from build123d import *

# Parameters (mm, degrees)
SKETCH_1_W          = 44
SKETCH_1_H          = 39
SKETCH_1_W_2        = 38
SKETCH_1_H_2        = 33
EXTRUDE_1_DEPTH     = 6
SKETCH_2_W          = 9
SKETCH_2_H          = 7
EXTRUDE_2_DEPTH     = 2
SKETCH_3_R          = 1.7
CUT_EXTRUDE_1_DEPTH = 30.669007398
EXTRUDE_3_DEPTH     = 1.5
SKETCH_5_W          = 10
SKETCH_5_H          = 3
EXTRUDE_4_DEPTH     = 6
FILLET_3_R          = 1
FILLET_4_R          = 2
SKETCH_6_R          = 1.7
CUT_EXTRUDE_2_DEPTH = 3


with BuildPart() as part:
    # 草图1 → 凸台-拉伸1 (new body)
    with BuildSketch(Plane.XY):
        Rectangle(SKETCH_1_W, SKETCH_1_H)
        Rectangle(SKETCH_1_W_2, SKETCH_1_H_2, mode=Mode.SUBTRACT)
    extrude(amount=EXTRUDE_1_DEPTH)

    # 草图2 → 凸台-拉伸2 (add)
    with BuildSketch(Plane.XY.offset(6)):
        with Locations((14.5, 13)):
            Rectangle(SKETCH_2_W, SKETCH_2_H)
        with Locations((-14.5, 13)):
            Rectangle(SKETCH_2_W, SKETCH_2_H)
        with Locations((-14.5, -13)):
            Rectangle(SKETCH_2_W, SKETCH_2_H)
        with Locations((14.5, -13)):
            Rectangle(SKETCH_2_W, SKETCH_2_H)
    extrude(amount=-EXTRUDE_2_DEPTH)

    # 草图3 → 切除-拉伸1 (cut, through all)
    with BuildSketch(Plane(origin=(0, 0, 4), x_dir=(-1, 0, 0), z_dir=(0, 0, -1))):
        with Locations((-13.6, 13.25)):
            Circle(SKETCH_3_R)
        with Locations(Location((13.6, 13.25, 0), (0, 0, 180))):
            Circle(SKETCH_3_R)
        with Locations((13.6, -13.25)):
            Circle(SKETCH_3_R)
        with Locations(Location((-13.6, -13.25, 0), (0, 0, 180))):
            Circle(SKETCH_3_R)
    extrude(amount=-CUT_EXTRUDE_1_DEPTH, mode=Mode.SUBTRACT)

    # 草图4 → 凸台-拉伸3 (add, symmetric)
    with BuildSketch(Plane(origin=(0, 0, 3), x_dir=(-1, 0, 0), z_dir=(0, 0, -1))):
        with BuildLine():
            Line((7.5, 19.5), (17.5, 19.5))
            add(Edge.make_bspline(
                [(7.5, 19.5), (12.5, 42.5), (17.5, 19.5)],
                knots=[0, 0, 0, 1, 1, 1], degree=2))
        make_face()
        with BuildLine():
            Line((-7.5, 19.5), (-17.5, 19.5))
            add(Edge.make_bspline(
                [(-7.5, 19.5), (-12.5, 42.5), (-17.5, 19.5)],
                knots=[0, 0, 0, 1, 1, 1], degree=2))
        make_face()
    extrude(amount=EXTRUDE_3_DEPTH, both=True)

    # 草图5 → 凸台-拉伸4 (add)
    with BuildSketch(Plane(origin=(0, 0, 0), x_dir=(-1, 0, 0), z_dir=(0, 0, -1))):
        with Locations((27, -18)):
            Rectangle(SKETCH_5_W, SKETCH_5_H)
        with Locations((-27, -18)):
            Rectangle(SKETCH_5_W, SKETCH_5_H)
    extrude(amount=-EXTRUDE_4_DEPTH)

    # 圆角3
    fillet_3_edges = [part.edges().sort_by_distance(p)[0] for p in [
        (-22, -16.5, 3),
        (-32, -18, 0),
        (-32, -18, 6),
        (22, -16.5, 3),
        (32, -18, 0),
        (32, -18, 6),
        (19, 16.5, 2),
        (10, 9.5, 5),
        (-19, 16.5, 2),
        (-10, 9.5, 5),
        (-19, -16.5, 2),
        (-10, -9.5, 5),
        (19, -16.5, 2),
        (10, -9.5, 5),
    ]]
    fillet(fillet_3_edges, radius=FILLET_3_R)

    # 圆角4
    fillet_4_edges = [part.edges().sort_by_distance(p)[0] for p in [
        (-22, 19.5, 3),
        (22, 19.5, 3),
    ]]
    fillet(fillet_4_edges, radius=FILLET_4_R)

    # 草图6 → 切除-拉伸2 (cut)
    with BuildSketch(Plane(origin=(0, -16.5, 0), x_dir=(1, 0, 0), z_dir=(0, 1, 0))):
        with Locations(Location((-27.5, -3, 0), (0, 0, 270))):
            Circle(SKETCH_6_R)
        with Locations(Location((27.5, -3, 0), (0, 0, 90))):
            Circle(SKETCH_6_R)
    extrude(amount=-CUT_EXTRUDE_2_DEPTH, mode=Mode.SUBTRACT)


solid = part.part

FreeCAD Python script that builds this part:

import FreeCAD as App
import Part
import Sketcher
Q = App.Units.Quantity


def edges_at(feature, points):
    """Names of the edges that pass closest to the given points."""
    edges = feature.Shape.Edges
    near = lambda p: min(range(len(edges)), key=lambda i: edges[i].distToShape(Part.Vertex(*p))[0])
    return sorted({f"Edge{near(p) + 1}" for p in points})

doc = App.newDocument("Part")
params = doc.addObject("Spreadsheet::Sheet", "Params")
for row, (alias, value) in enumerate([
    ("sketch1_width", "44 mm"),
    ("sketch1_width2", "38 mm"),
    ("sketch1_height", "39 mm"),
    ("sketch1_height2", "33 mm"),
    ("pad1_length", "6 mm"),
    ("sketch2_width", "9 mm"),
    ("sketch2_height", "7 mm"),
    ("pad2_length", "2 mm"),
    ("sketch3_diameter", "3.4 mm"),
    ("pad3_length", "3 mm"),
    ("sketch5_width", "10 mm"),
    ("sketch5_height", "3 mm"),
    ("pad4_length", "6 mm"),
    ("fillet_radius", "1 mm"),
    ("fillet2_radius", "2 mm"),
    ("sketch6_diameter", "3.4 mm"),
    ("pocket2_length", "3 mm"),
], start=1):
    params.set(f"A{row}", alias)
    params.set(f"B{row}", "=" + value)
    params.setAlias(f"B{row}", alias)

body = doc.addObject("PartDesign::Body", "Body")

# Sketch on XY plane
sketch1 = doc.addObject("Sketcher::SketchObject", "Sketch")
body.addObject(sketch1)
sketch1.AttachmentSupport = (doc.XY_Plane, [""])
sketch1.MapMode = "FlatFace"
sketch1.addGeometry(Part.LineSegment(App.Vector(-22, 20, 0), App.Vector(-22, -20, 0)), False)
sketch1.addGeometry(Part.LineSegment(App.Vector(-22, -20, 0), App.Vector(22, -20, 0)), False)
sketch1.addGeometry(Part.LineSegment(App.Vector(22, -20, 0), App.Vector(22, 20, 0)), False)
sketch1.addGeometry(Part.LineSegment(App.Vector(22, 20, 0), App.Vector(-22, 20, 0)), False)
sketch1.addGeometry(Part.LineSegment(App.Vector(19, -16, 0), App.Vector(-19, -16, 0)), False)
sketch1.addGeometry(Part.LineSegment(App.Vector(-19, -16, 0), App.Vector(-19, 16, 0)), False)
sketch1.addGeometry(Part.LineSegment(App.Vector(-19, 16, 0), App.Vector(19, 16, 0)), False)
sketch1.addGeometry(Part.LineSegment(App.Vector(19, 16, 0), App.Vector(19, -16, 0)), False)
sketch1.addConstraint(Sketcher.Constraint("Coincident", 0, 2, 1, 1))
sketch1.addConstraint(Sketcher.Constraint("Coincident", 1, 2, 2, 1))
sketch1.addConstraint(Sketcher.Constraint("Coincident", 2, 2, 3, 1))
sketch1.addConstraint(Sketcher.Constraint("Coincident", 3, 2, 0, 1))
sketch1.addConstraint(Sketcher.Constraint("Coincident", 4, 2, 5, 1))
sketch1.addConstraint(Sketcher.Constraint("Coincident", 5, 2, 6, 1))
sketch1.addConstraint(Sketcher.Constraint("Coincident", 6, 2, 7, 1))
sketch1.addConstraint(Sketcher.Constraint("Coincident", 7, 2, 4, 1))
sketch1.addConstraint(Sketcher.Constraint("Vertical", 0))
sketch1.addConstraint(Sketcher.Constraint("Horizontal", 1))
sketch1.addConstraint(Sketcher.Constraint("Vertical", 2))
sketch1.addConstraint(Sketcher.Constraint("Horizontal", 3))
sketch1.addConstraint(Sketcher.Constraint("Horizontal", 4))
sketch1.addConstraint(Sketcher.Constraint("Vertical", 5))
sketch1.addConstraint(Sketcher.Constraint("Horizontal", 6))
sketch1.addConstraint(Sketcher.Constraint("Vertical", 7))
sketch1.addConstraint(Sketcher.Constraint("Symmetric", 0, 2, 2, 2, -1, 1))
sketch1.addConstraint(Sketcher.Constraint("Symmetric", 4, 2, 6, 2, -1, 1))
sketch1.addConstraint(Sketcher.Constraint("DistanceX", 1, 1, 1, 2, Q("44 mm")))
sketch1.addConstraint(Sketcher.Constraint("DistanceX", 4, 2, 4, 1, Q("38 mm")))
sketch1.addConstraint(Sketcher.Constraint("DistanceY", 0, 2, 0, 1, Q("39 mm")))
sketch1.addConstraint(Sketcher.Constraint("DistanceY", 5, 1, 5, 2, Q("33 mm")))
sketch1.setExpression("Constraints[18]", "Params.sketch1_width")
sketch1.setExpression("Constraints[19]", "Params.sketch1_width2")
sketch1.setExpression("Constraints[20]", "Params.sketch1_height")
sketch1.setExpression("Constraints[21]", "Params.sketch1_height2")
pad1 = doc.addObject("PartDesign::Pad", "Pad")
body.addObject(pad1)
pad1.Profile = sketch1
pad1.setExpression("Length", "Params.pad1_length")

# Sketch on XY plane
sketch2 = doc.addObject("Sketcher::SketchObject", "Sketch001")
body.addObject(sketch2)
sketch2.AttachmentSupport = (doc.XY_Plane, [""])
sketch2.MapMode = "FlatFace"
sketch2.AttachmentOffset = App.Placement(App.Vector(0, 0, 6), App.Rotation())
sketch2.addGeometry(Part.LineSegment(App.Vector(10, 16, 0), App.Vector(10, 10, 0)), False)
sketch2.addGeometry(Part.LineSegment(App.Vector(10, 10, 0), App.Vector(19, 10, 0)), False)
sketch2.addGeometry(Part.LineSegment(App.Vector(19, 10, 0), App.Vector(19, 16, 0)), False)
sketch2.addGeometry(Part.LineSegment(App.Vector(19, 16, 0), App.Vector(10, 16, 0)), False)
sketch2.addGeometry(Part.LineSegment(App.Vector(-19, 16, 0), App.Vector(-19, 10, 0)), False)
sketch2.addGeometry(Part.LineSegment(App.Vector(-19, 10, 0), App.Vector(-10, 10, 0)), False)
sketch2.addGeometry(Part.LineSegment(App.Vector(-10, 10, 0), App.Vector(-10, 16, 0)), False)
sketch2.addGeometry(Part.LineSegment(App.Vector(-10, 16, 0), App.Vector(-19, 16, 0)), False)
sketch2.addGeometry(Part.LineSegment(App.Vector(-19, -10, 0), App.Vector(-19, -16, 0)), False)
sketch2.addGeometry(Part.LineSegment(App.Vector(-19, -16, 0), App.Vector(-10, -16, 0)), False)
sketch2.addGeometry(Part.LineSegment(App.Vector(-10, -16, 0), App.Vector(-10, -10, 0)), False)
sketch2.addGeometry(Part.LineSegment(App.Vector(-10, -10, 0), App.Vector(-19, -10, 0)), False)
sketch2.addGeometry(Part.LineSegment(App.Vector(10, -10, 0), App.Vector(10, -16, 0)), False)
sketch2.addGeometry(Part.LineSegment(App.Vector(10, -16, 0), App.Vector(19, -16, 0)), False)
sketch2.addGeometry(Part.LineSegment(App.Vector(19, -16, 0), App.Vector(19, -10, 0)), False)
sketch2.addGeometry(Part.LineSegment(App.Vector(19, -10, 0), App.Vector(10, -10, 0)), False)
sketch2.addConstraint(Sketcher.Constraint("Coincident", 0, 2, 1, 1))
sketch2.addConstraint(Sketcher.Constraint("Coincident", 1, 2, 2, 1))
sketch2.addConstraint(Sketcher.Constraint("Coincident", 2, 2, 3, 1))
sketch2.addConstraint(Sketcher.Constraint("Coincident", 3, 2, 0, 1))
sketch2.addConstraint(Sketcher.Constraint("Coincident", 4, 2, 5, 1))
sketch2.addConstraint(Sketcher.Constraint("Coincident", 5, 2, 6, 1))
sketch2.addConstraint(Sketcher.Constraint("Coincident", 6, 2, 7, 1))
sketch2.addConstraint(Sketcher.Constraint("Coincident", 7, 2, 4, 1))
sketch2.addConstraint(Sketcher.Constraint("Coincident", 8, 2, 9, 1))
sketch2.addConstraint(Sketcher.Constraint("Coincident", 9, 2, 10, 1))
sketch2.addConstraint(Sketcher.Constraint("Coincident", 10, 2, 11, 1))
sketch2.addConstraint(Sketcher.Constraint("Coincident", 11, 2, 8, 1))
sketch2.addConstraint(Sketcher.Constraint("Coincident", 12, 2, 13, 1))
sketch2.addConstraint(Sketcher.Constraint("Coincident", 13, 2, 14, 1))
sketch2.addConstraint(Sketcher.Constraint("Coincident", 14, 2, 15, 1))
sketch2.addConstraint(Sketcher.Constraint("Coincident", 15, 2, 12, 1))
sketch2.addConstraint(Sketcher.Constraint("Vertical", 0))
sketch2.addConstraint(Sketcher.Constraint("Horizontal", 1))
sketch2.addConstraint(Sketcher.Constraint("Vertical", 2))
sketch2.addConstraint(Sketcher.Constraint("Horizontal", 3))
sketch2.addConstraint(Sketcher.Constraint("Vertical", 4))
sketch2.addConstraint(Sketcher.Constraint("Horizontal", 5))
sketch2.addConstraint(Sketcher.Constraint("Vertical", 6))
sketch2.addConstraint(Sketcher.Constraint("Horizontal", 7))
sketch2.addConstraint(Sketcher.Constraint("Vertical", 8))
sketch2.addConstraint(Sketcher.Constraint("Horizontal", 9))
sketch2.addConstraint(Sketcher.Constraint("Vertical", 10))
sketch2.addConstraint(Sketcher.Constraint("Horizontal", 11))
sketch2.addConstraint(Sketcher.Constraint("Vertical", 12))
sketch2.addConstraint(Sketcher.Constraint("Horizontal", 13))
sketch2.addConstraint(Sketcher.Constraint("Vertical", 14))
sketch2.addConstraint(Sketcher.Constraint("Horizontal", 15))
sketch2.addConstraint(Sketcher.Constraint("Symmetric", 2, 2, 8, 2, -1, 1))
sketch2.addConstraint(Sketcher.Constraint("Symmetric", 0, 2, 10, 2, -1, 1))
sketch2.addConstraint(Sketcher.Constraint("Symmetric", 6, 2, 12, 2, -1, 1))
sketch2.addConstraint(Sketcher.Constraint("Symmetric", 4, 2, 14, 2, -1, 1))
sketch2.addConstraint(Sketcher.Constraint("Symmetric", 1, 2, 4, 2, -2))
sketch2.addConstraint(Sketcher.Constraint("Symmetric", 3, 2, 6, 2, -2))
sketch2.addConstraint(Sketcher.Constraint("DistanceX", 1, 1, 1, 2, Q("9 mm")))
sketch2.addConstraint(Sketcher.Constraint("DistanceY", 0, 2, 0, 1, Q("7 mm")))
sketch2.addConstraint(Sketcher.Constraint("DistanceX", -1, 1, 0, 2, Q("10 mm")))
sketch2.addConstraint(Sketcher.Constraint("DistanceY", 8, 2, 4, 2, Q("26 mm")))
sketch2.setExpression("Constraints[38]", "Params.sketch2_width")
sketch2.setExpression("Constraints[39]", "Params.sketch2_height")
pad2 = doc.addObject("PartDesign::Pad", "Pad001")
body.addObject(pad2)
pad2.Profile = sketch2
pad2.setExpression("Length", "Params.pad2_length")
pad2.Reversed = True

# Sketch on XY plane
sketch3 = doc.addObject("Sketcher::SketchObject", "Sketch002")
body.addObject(sketch3)
sketch3.AttachmentSupport = (doc.XY_Plane, [""])
sketch3.MapMode = "FlatFace"
sketch3.AttachmentOffset = App.Placement(App.Vector(0, 0, 4), App.Rotation())
sketch3.addGeometry(Part.Circle(App.Vector(13.6, 13.2, 0), App.Vector(0, 0, 1), 1.7), False)
sketch3.addGeometry(Part.Circle(App.Vector(-13.6, 13.2, 0), App.Vector(0, 0, 1), 1.7), False)
sketch3.addGeometry(Part.Circle(App.Vector(-13.6, -13.2, 0), App.Vector(0, 0, 1), 1.7), False)
sketch3.addGeometry(Part.Circle(App.Vector(13.6, -13.2, 0), App.Vector(0, 0, 1), 1.7), False)
sketch3.addConstraint(Sketcher.Constraint("Equal", 0, 1))
sketch3.addConstraint(Sketcher.Constraint("Equal", 1, 2))
sketch3.addConstraint(Sketcher.Constraint("Equal", 2, 3))
sketch3.addConstraint(Sketcher.Constraint("Symmetric", 0, 3, 2, 3, -1, 1))
sketch3.addConstraint(Sketcher.Constraint("Symmetric", 1, 3, 3, 3, -1, 1))
sketch3.addConstraint(Sketcher.Constraint("Symmetric", 0, 3, 1, 3, -2))
sketch3.addConstraint(Sketcher.Constraint("Diameter", 0, Q("3.4 mm")))
sketch3.addConstraint(Sketcher.Constraint("DistanceX", -1, 1, 0, 3, Q("13.6 mm")))
sketch3.addConstraint(Sketcher.Constraint("DistanceY", 2, 3, 1, 3, Q("26.5 mm")))
sketch3.setExpression("Constraints[6]", "Params.sketch3_diameter")
pocket1 = doc.addObject("PartDesign::Pocket", "Pocket")
body.addObject(pocket1)
pocket1.Profile = sketch3
pocket1.Type = "ThroughAll"
pocket1.Reversed = True

# Sketch on XY plane
sketch4 = doc.addObject("Sketcher::SketchObject", "Sketch003")
body.addObject(sketch4)
sketch4.AttachmentSupport = (doc.XY_Plane, [""])
sketch4.MapMode = "FlatFace"
sketch4.AttachmentOffset = App.Placement(App.Vector(0, 0, 3), App.Rotation())
sketch4.addGeometry(Part.LineSegment(App.Vector(-7.5, 19.5, 0), App.Vector(-17.5, 19.5, 0)), False)
sketch4.addGeometry(Part.BSplineCurve([App.Vector(-7.5, 19.5, 0), App.Vector(-12.5, 42.5, 0), App.Vector(-17.5, 19.5, 0)], [3, 3], [0, 1], False, 2, [1, 1, 1], False), False)
sketch4.addGeometry(Part.LineSegment(App.Vector(17.5, 19.5, 0), App.Vector(7.5, 19.5, 0)), False)
sketch4.addGeometry(Part.BSplineCurve([App.Vector(7.5, 19.5, 0), App.Vector(12.5, 42.5, 0), App.Vector(17.5, 19.5, 0)], [3, 3], [0, 1], False, 2, [1, 1, 1], False), False)
sketch4.addConstraint(Sketcher.Constraint("Block", 1))
sketch4.addConstraint(Sketcher.Constraint("Block", 3))
sketch4.addConstraint(Sketcher.Constraint("Coincident", 0, 1, 1, 1))
sketch4.addConstraint(Sketcher.Constraint("Coincident", 1, 2, 0, 2))
sketch4.addConstraint(Sketcher.Constraint("Coincident", 2, 1, 3, 2))
sketch4.addConstraint(Sketcher.Constraint("Coincident", 3, 1, 2, 2))
pad3 = doc.addObject("PartDesign::Pad", "Pad002")
body.addObject(pad3)
pad3.Profile = sketch4
pad3.setExpression("Length", "Params.pad3_length")
pad3.Midplane = True

# Sketch on XY plane
sketch5 = doc.addObject("Sketcher::SketchObject", "Sketch004")
body.addObject(sketch5)
sketch5.AttachmentSupport = (doc.XY_Plane, [""])
sketch5.MapMode = "FlatFace"
sketch5.addGeometry(Part.LineSegment(App.Vector(-22, -16.5, 0), App.Vector(-22, -19.5, 0)), False)
sketch5.addGeometry(Part.LineSegment(App.Vector(-22, -19.5, 0), App.Vector(-32, -19.5, 0)), False)
sketch5.addGeometry(Part.LineSegment(App.Vector(-32, -19.5, 0), App.Vector(-32, -16.5, 0)), False)
sketch5.addGeometry(Part.LineSegment(App.Vector(-32, -16.5, 0), App.Vector(-22, -16.5, 0)), False)
sketch5.addGeometry(Part.LineSegment(App.Vector(32, -16.5, 0), App.Vector(32, -19.5, 0)), False)
sketch5.addGeometry(Part.LineSegment(App.Vector(32, -19.5, 0), App.Vector(22, -19.5, 0)), False)
sketch5.addGeometry(Part.LineSegment(App.Vector(22, -19.5, 0), App.Vector(22, -16.5, 0)), False)
sketch5.addGeometry(Part.LineSegment(App.Vector(22, -16.5, 0), App.Vector(32, -16.5, 0)), False)
sketch5.addConstraint(Sketcher.Constraint("Coincident", 0, 2, 1, 1))
sketch5.addConstraint(Sketcher.Constraint("Coincident", 1, 2, 2, 1))
sketch5.addConstraint(Sketcher.Constraint("Coincident", 2, 2, 3, 1))
sketch5.addConstraint(Sketcher.Constraint("Coincident", 3, 2, 0, 1))
sketch5.addConstraint(Sketcher.Constraint("Coincident", 4, 2, 5, 1))
sketch5.addConstraint(Sketcher.Constraint("Coincident", 5, 2, 6, 1))
sketch5.addConstraint(Sketcher.Constraint("Coincident", 6, 2, 7, 1))
sketch5.addConstraint(Sketcher.Constraint("Coincident", 7, 2, 4, 1))
sketch5.addConstraint(Sketcher.Constraint("Vertical", 0))
sketch5.addConstraint(Sketcher.Constraint("Horizontal", 1))
sketch5.addConstraint(Sketcher.Constraint("Vertical", 2))
sketch5.addConstraint(Sketcher.Constraint("Horizontal", 3))
sketch5.addConstraint(Sketcher.Constraint("Vertical", 4))
sketch5.addConstraint(Sketcher.Constraint("Horizontal", 5))
sketch5.addConstraint(Sketcher.Constraint("Vertical", 6))
sketch5.addConstraint(Sketcher.Constraint("Horizontal", 7))
sketch5.addConstraint(Sketcher.Constraint("Symmetric", 1, 2, 4, 2, -2))
sketch5.addConstraint(Sketcher.Constraint("Symmetric", 3, 2, 6, 2, -2))
sketch5.addConstraint(Sketcher.Constraint("DistanceX", 1, 2, 1, 1, Q("10 mm")))
sketch5.addConstraint(Sketcher.Constraint("DistanceY", 0, 2, 0, 1, Q("3 mm")))
sketch5.addConstraint(Sketcher.Constraint("DistanceX", 0, 2, -1, 1, Q("22 mm")))
sketch5.addConstraint(Sketcher.Constraint("DistanceY", 0, 2, -1, 1, Q("19.5 mm")))
sketch5.setExpression("Constraints[18]", "Params.sketch5_width")
sketch5.setExpression("Constraints[19]", "Params.sketch5_height")
pad4 = doc.addObject("PartDesign::Pad", "Pad003")
body.addObject(pad4)
pad4.Profile = sketch5
pad4.setExpression("Length", "Params.pad4_length")
doc.recompute()

fillet = doc.addObject("PartDesign::Fillet", "Fillet")
body.addObject(fillet)
fillet.Base = (pad4, edges_at(pad4, [
    (-22, -16.5, 3),
    (-32, -18, 0),
    (-32, -18, 6),
    (22, -16.5, 3),
    (32, -18, 0),
    (32, -18, 6),
    (19, 16.5, 2),
    (10, 9.5, 5),
    (-19, 16.5, 2),
    (-10, 9.5, 5),
    (-19, -16.5, 2),
    (-10, -9.5, 5),
    (19, -16.5, 2),
    (10, -9.5, 5),
]))
fillet.setExpression("Radius", "Params.fillet_radius")
doc.recompute()

fillet2 = doc.addObject("PartDesign::Fillet", "Fillet001")
body.addObject(fillet2)
fillet2.Base = (fillet, edges_at(fillet, [(-22, 19.5, 3), (22, 19.5, 3)]))
fillet2.setExpression("Radius", "Params.fillet2_radius")

# Sketch on XZ plane
sketch6 = doc.addObject("Sketcher::SketchObject", "Sketch005")
body.addObject(sketch6)
sketch6.AttachmentSupport = (doc.XZ_Plane, [""])
sketch6.MapMode = "FlatFace"
sketch6.AttachmentOffset = App.Placement(App.Vector(0, 0, 16.5), App.Rotation())
sketch6.addGeometry(Part.Circle(App.Vector(-27.5, 3, 0), App.Vector(0, 0, 1), 1.7), False)
sketch6.addGeometry(Part.Circle(App.Vector(27.5, 3, 0), App.Vector(0, 0, 1), 1.7), False)
sketch6.addConstraint(Sketcher.Constraint("Equal", 0, 1))
sketch6.addConstraint(Sketcher.Constraint("Symmetric", 0, 3, 1, 3, -2))
sketch6.addConstraint(Sketcher.Constraint("Diameter", 0, Q("3.4 mm")))
sketch6.addConstraint(Sketcher.Constraint("DistanceY", -1, 1, 0, 3, Q("3 mm")))
sketch6.addConstraint(Sketcher.Constraint("DistanceX", 0, 3, 1, 3, Q("55 mm")))
sketch6.setExpression("Constraints[2]", "Params.sketch6_diameter")
pocket2 = doc.addObject("PartDesign::Pocket", "Pocket001")
body.addObject(pocket2)
pocket2.Profile = sketch6
pocket2.setExpression("Length", "Params.pocket2_length")
pocket2.Reversed = True

doc.recompute()
